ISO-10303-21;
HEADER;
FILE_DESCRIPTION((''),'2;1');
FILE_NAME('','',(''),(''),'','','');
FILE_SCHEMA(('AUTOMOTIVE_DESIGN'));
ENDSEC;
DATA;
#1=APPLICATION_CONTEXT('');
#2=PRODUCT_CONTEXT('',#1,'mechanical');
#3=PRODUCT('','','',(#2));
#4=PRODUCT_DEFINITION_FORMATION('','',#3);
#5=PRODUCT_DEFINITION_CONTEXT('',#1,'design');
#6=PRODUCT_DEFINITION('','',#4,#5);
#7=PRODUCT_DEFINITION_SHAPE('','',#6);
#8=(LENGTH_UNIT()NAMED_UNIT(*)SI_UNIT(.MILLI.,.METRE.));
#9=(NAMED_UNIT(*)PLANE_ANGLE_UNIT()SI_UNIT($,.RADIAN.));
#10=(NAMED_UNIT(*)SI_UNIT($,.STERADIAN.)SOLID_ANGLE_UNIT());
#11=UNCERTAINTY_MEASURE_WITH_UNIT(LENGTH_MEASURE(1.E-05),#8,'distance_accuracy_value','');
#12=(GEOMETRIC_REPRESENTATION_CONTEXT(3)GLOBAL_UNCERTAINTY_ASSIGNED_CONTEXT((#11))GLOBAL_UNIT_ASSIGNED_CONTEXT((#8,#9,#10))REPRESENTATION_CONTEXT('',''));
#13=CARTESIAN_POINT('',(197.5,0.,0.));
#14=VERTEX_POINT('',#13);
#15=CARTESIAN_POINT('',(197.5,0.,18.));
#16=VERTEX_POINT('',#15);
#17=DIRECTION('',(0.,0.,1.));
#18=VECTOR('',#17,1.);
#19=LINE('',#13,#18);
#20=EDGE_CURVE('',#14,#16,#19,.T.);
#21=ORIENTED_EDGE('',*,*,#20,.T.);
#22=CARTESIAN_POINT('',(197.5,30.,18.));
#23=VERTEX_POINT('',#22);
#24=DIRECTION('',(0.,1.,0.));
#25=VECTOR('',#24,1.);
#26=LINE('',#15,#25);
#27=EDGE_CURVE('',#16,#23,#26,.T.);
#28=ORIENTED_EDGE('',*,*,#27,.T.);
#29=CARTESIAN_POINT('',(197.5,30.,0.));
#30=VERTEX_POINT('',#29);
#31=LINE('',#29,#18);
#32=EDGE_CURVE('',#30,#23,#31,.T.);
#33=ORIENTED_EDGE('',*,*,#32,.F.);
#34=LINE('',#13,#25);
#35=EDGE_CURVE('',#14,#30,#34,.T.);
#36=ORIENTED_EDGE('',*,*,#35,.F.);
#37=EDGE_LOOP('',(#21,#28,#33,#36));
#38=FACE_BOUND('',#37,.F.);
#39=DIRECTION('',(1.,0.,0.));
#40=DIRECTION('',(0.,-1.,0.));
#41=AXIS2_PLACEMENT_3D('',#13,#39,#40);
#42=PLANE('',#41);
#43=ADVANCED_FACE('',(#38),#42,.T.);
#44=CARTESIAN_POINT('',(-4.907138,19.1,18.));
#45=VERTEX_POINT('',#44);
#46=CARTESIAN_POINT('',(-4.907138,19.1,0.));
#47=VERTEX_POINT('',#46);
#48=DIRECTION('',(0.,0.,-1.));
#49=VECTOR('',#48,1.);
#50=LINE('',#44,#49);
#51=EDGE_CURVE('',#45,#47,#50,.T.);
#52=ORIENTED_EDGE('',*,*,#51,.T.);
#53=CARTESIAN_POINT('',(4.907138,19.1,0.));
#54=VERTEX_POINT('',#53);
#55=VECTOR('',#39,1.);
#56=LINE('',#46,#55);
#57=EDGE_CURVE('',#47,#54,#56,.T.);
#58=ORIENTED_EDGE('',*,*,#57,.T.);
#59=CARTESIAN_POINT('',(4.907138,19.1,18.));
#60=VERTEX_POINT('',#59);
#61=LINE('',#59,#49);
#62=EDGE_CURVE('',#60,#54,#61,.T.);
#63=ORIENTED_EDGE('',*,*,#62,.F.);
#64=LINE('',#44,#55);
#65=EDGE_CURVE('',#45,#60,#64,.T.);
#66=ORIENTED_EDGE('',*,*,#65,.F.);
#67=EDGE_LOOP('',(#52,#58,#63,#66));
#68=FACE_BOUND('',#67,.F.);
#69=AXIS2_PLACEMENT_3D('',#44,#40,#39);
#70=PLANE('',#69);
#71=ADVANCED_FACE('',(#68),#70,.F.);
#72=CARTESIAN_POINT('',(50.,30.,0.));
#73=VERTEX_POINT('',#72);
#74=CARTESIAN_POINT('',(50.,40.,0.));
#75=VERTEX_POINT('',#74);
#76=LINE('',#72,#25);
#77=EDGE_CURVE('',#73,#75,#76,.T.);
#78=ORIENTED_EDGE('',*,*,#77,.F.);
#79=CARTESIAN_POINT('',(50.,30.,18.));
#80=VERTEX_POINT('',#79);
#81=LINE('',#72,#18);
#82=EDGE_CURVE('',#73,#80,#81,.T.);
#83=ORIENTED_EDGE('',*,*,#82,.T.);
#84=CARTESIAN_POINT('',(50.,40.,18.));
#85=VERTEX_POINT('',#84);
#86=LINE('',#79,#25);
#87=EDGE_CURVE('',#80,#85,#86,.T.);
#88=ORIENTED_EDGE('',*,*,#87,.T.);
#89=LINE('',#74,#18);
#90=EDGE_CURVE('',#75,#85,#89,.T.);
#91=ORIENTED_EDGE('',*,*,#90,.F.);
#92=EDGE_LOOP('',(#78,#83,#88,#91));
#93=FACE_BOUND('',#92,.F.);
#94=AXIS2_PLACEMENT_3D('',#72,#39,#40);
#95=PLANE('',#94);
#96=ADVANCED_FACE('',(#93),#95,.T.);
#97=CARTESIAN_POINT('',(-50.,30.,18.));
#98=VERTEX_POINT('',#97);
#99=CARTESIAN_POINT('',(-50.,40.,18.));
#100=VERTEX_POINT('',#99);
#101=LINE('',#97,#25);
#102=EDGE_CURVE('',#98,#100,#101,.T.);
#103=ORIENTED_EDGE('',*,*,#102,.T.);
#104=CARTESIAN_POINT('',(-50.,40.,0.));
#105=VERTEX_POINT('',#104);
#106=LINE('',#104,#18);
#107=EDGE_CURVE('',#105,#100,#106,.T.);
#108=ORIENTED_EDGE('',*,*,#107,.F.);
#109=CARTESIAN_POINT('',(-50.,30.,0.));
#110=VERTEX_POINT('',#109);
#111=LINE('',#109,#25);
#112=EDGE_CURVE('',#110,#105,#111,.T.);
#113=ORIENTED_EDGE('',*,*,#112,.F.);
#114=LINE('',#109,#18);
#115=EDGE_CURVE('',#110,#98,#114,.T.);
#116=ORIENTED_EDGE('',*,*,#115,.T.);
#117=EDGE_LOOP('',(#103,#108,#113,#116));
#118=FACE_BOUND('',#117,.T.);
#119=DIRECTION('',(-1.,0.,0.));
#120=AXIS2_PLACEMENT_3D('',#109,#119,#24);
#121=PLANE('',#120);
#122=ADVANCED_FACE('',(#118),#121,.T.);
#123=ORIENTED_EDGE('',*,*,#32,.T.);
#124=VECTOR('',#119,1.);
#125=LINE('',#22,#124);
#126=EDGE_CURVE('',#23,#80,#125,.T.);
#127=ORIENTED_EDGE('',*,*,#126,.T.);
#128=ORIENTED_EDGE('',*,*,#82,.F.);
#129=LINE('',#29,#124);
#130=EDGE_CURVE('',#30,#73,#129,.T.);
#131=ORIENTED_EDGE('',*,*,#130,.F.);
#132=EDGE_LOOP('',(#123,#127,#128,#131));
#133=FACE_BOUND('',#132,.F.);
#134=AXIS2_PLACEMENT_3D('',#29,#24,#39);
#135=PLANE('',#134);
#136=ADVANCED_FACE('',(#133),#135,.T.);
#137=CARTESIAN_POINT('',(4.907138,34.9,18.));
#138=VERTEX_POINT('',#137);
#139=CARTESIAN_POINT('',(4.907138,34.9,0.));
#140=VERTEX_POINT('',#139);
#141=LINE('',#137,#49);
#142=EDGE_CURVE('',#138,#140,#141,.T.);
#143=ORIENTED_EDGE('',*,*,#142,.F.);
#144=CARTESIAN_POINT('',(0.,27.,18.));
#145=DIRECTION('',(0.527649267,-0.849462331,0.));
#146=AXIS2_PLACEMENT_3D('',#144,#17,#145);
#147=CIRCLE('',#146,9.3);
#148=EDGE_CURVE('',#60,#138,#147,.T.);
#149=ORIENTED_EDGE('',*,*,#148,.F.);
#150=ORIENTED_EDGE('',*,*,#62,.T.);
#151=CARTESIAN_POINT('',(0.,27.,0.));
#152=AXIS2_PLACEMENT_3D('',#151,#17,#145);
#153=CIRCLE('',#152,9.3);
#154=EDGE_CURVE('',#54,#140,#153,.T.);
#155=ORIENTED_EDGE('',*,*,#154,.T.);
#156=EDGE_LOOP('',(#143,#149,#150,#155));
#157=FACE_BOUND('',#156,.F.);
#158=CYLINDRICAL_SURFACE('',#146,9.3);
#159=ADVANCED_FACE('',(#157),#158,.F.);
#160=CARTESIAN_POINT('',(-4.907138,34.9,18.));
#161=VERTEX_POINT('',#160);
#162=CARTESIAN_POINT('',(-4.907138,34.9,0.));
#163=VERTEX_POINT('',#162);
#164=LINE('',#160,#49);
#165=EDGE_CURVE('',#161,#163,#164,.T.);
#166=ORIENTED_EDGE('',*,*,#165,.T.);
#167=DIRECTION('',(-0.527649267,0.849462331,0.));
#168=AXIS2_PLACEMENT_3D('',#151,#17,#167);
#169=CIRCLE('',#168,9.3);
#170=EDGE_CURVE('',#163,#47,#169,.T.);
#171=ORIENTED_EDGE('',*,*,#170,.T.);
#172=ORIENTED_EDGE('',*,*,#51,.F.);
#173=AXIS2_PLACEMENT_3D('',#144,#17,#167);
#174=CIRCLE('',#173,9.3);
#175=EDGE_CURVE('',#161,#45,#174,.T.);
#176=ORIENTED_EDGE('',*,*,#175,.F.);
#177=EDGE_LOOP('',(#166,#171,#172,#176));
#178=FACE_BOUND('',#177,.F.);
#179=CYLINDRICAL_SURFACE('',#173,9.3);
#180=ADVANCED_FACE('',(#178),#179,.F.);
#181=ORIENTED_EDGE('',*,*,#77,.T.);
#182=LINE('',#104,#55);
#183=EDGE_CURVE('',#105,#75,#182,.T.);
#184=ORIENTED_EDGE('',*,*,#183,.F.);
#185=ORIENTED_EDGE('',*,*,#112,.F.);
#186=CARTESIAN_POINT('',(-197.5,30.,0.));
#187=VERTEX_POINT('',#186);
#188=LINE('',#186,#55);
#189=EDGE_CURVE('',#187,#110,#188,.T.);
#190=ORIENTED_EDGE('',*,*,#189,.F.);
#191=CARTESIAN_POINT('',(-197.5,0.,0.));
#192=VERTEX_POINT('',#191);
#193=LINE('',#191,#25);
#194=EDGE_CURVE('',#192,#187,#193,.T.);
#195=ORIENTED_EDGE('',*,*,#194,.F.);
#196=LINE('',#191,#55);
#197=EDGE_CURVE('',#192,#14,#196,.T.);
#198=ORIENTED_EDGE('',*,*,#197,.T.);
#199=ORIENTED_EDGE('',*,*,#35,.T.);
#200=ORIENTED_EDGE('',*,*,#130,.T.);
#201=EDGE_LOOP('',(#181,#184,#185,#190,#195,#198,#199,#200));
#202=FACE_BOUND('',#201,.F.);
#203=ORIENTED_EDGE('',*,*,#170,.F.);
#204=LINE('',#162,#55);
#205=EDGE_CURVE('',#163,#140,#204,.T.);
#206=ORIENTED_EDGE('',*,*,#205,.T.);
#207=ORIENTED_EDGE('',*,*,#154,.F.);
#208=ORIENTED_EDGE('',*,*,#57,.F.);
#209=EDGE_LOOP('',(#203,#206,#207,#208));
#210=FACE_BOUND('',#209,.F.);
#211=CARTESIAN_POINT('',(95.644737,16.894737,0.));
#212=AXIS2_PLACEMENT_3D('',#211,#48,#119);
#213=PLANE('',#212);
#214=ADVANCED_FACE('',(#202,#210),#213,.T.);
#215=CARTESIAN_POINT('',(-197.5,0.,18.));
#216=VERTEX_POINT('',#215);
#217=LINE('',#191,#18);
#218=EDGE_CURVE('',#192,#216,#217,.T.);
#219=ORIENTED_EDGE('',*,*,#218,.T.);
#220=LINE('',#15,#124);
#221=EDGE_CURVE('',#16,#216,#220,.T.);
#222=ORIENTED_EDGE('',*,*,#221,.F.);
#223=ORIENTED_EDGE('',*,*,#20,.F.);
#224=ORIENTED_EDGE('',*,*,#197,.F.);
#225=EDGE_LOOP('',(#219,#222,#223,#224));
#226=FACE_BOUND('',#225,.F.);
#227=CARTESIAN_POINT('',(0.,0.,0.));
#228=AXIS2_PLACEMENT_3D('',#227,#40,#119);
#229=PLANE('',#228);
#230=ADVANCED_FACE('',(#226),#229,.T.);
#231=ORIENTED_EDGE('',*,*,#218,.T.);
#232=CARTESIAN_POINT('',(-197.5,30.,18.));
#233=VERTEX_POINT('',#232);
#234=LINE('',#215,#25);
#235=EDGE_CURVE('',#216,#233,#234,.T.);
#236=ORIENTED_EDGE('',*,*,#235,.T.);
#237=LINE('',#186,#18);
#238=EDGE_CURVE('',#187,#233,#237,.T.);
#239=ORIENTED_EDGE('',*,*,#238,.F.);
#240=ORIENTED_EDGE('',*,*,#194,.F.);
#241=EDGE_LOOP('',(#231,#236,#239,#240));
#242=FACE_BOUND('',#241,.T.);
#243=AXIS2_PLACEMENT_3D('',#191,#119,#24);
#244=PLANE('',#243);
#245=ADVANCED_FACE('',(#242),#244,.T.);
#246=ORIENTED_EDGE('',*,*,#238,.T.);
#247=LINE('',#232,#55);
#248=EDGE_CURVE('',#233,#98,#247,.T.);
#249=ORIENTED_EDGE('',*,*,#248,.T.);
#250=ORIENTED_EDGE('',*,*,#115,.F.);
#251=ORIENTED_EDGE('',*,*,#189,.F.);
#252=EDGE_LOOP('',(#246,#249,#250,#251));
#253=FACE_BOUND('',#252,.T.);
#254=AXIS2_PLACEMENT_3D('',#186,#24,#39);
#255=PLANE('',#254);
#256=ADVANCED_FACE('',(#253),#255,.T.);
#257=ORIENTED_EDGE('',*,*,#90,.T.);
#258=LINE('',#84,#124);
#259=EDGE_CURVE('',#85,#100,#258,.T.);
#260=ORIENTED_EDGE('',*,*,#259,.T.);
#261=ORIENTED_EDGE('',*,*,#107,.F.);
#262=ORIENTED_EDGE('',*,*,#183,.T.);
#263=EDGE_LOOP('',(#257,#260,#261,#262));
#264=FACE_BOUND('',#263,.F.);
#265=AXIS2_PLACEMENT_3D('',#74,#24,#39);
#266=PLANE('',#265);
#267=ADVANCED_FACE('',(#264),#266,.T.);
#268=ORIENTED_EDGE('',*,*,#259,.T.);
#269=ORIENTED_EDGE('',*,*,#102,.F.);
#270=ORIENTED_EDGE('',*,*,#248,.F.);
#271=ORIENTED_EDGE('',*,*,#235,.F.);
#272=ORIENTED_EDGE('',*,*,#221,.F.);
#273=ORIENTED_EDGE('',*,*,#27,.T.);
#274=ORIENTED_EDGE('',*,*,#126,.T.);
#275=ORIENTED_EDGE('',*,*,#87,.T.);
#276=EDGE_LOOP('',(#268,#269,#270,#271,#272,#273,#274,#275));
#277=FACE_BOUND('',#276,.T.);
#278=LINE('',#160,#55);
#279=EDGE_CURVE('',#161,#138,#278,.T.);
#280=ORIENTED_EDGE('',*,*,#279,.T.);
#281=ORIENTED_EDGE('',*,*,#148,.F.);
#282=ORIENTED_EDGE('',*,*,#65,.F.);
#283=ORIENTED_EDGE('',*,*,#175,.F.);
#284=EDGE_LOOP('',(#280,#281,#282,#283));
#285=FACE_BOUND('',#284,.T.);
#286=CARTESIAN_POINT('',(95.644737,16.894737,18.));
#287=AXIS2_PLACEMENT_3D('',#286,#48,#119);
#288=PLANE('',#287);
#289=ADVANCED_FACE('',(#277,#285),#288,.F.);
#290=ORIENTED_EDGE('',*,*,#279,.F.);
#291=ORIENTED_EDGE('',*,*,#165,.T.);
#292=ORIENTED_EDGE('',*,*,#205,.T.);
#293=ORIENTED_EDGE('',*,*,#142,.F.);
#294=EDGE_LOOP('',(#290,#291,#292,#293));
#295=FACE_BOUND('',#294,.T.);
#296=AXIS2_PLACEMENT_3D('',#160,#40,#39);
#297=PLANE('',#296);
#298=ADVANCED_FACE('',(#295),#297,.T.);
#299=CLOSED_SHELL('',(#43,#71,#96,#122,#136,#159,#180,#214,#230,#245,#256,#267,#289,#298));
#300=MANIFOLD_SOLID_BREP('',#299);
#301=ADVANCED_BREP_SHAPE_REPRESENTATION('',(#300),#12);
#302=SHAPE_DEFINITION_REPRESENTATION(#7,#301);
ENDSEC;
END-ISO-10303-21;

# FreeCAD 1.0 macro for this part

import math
import FreeCAD as App
import Part
import Sketcher
from FreeCAD import Vector
Q = App.Units.Quantity

doc = App.newDocument("Part")
body = doc.addObject("PartDesign::Body", "Body")

sketch1 = body.newObject("Sketcher::SketchObject", "Sketch")
sketch1.AttachmentSupport = (doc.getObject("XY_Plane"), [""])
sketch1.MapMode = "FlatFace"
sketch1.addGeometry(Part.LineSegment(Vector(-197.5, 0, 0), Vector(0, 0, 0)), False)
sketch1.addGeometry(Part.LineSegment(Vector(0, 0, 0), Vector(0, 40, 0)), False)
sketch1.addGeometry(Part.LineSegment(Vector(0, 40, 0), Vector(-50, 40, 0)), False)
sketch1.addGeometry(Part.LineSegment(Vector(-50, 40, 0), Vector(-50, 30, 0)), False)
sketch1.addGeometry(Part.LineSegment(Vector(-50, 30, 0), Vector(-197.5, 30, 0)), False)
sketch1.addGeometry(Part.LineSegment(Vector(-197.5, 30, 0), Vector(-197.5, 0, 0)), False)
sketch1.addConstraint(Sketcher.Constraint("Coincident", 0, 2, 1, 1))
sketch1.addConstraint(Sketcher.Constraint("Coincident", 1, 2, 2, 1))
sketch1.addConstraint(Sketcher.Constraint("Coincident", 2, 2, 3, 1))
sketch1.addConstraint(Sketcher.Constraint("Coincident", 3, 2, 4, 1))
sketch1.addConstraint(Sketcher.Constraint("Coincident", 4, 2, 5, 1))
sketch1.addConstraint(Sketcher.Constraint("Coincident", 5, 2, 0, 1))
sketch1.addConstraint(Sketcher.Constraint("Horizontal", 0))
sketch1.addConstraint(Sketcher.Constraint("Vertical", 1))
sketch1.addConstraint(Sketcher.Constraint("Horizontal", 2))
sketch1.addConstraint(Sketcher.Constraint("Vertical", 3))
sketch1.addConstraint(Sketcher.Constraint("Horizontal", 4))
sketch1.addConstraint(Sketcher.Constraint("Vertical", 5))
sketch1.addConstraint(Sketcher.Constraint("Coincident", 0, 2, -1, 1))
sketch1.addConstraint(Sketcher.Constraint("DistanceX", 2, 2, 2, 1, Q("50 mm")))
sketch1.addConstraint(Sketcher.Constraint("DistanceY", 1, 1, 1, 2, Q("40 mm")))
sketch1.addConstraint(Sketcher.Constraint("DistanceY", 3, 2, 3, 1, Q("10 mm")))
sketch1.addConstraint(Sketcher.Constraint("DistanceX", 0, 1, 0, 2, Q("197.5 mm")))
pad1 = body.newObject("PartDesign::Pad", "Pad")
pad1.Profile = sketch1
pad1.Length = 18
doc.recompute()

mirrored = body.newObject("PartDesign::Mirrored", "Mirrored")
mirrored.Originals = [pad1]
mirrored.MirrorPlane = (doc.getObject("YZ_Plane"), [""])
body.Tip = mirrored

sketch2 = body.newObject("Sketcher::SketchObject", "Sketch001")
sketch2.AttachmentSupport = (doc.getObject("XY_Plane"), [""])
sketch2.MapMode = "FlatFace"
sketch2.AttachmentOffset = App.Placement(Vector(0, 0, 18), App.Rotation())
sketch2.addGeometry(Part.ArcOfCircle(Part.Circle(Vector(0, 27, 0), Vector(0, 0, 1), 9.3), math.radians(121.846762), math.radians(238.153238)), False)
sketch2.addGeometry(Part.LineSegment(Vector(-4.907138, 19.1, 0), Vector(4.907138, 19.1, 0)), False)
sketch2.addGeometry(Part.ArcOfCircle(Part.Circle(Vector(0, 27, 0), Vector(0, 0, 1), 9.3), math.radians(-58.153238), math.radians(58.153238)), False)
sketch2.addGeometry(Part.LineSegment(Vector(4.907138, 34.9, 0), Vector(-4.907138, 34.9, 0)), False)
sketch2.addConstraint(Sketcher.Constraint("Coincident", 0, 2, 1, 1))
sketch2.addConstraint(Sketcher.Constraint("Coincident", 1, 2, 2, 1))
sketch2.addConstraint(Sketcher.Constraint("Coincident", 2, 2, 3, 1))
sketch2.addConstraint(Sketcher.Constraint("Coincident", 3, 2, 0, 1))
sketch2.addConstraint(Sketcher.Constraint("Horizontal", 1))
sketch2.addConstraint(Sketcher.Constraint("Horizontal", 3))
sketch2.addConstraint(Sketcher.Constraint("Coincident", 2, 3, 0, 3))
sketch2.addConstraint(Sketcher.Constraint("Equal", 0, 2))
sketch2.addConstraint(Sketcher.Constraint("PointOnObject", 0, 3, -2))
sketch2.addConstraint(Sketcher.Constraint("Vertical", 1, 2, 2, 2))
sketch2.addConstraint(Sketcher.Constraint("Radius", 0, Q("9.3 mm")))
sketch2.addConstraint(Sketcher.Constraint("DistanceY", -1, 1, 0, 3, Q("27 mm")))
sketch2.addConstraint(Sketcher.Constraint("DistanceY", -1, 1, 0, 2, Q("19.1 mm")))
pocket1 = body.newObject("PartDesign::Pocket", "Pocket")
pocket1.Profile = sketch2
pocket1.Length = 18

doc.recompute()
